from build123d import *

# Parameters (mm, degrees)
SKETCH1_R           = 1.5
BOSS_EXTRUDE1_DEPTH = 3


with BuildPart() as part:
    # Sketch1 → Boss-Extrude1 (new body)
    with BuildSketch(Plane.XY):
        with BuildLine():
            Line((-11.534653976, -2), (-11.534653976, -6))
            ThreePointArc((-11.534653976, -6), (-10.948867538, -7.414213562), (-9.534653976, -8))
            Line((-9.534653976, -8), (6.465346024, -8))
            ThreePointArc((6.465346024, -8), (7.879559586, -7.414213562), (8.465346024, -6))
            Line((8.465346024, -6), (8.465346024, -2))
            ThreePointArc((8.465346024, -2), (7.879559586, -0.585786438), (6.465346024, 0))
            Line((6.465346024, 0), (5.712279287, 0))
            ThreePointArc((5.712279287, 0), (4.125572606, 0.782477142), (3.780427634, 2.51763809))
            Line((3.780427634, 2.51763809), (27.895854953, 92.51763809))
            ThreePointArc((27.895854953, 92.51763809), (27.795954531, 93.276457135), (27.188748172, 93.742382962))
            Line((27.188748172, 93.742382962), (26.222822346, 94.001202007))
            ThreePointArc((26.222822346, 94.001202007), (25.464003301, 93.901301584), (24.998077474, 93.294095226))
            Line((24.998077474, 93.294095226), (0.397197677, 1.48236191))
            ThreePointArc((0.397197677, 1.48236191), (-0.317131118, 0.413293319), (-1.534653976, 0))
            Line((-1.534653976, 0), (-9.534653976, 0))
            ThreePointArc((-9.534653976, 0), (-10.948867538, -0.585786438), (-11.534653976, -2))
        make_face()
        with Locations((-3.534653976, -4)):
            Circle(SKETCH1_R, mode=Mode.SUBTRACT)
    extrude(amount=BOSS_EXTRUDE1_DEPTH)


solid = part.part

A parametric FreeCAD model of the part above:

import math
import FreeCAD as App
import Part
import Sketcher
Q = App.Units.Quantity

doc = App.newDocument("Part")
body = doc.addObject("PartDesign::Body", "Body")

# Sketch on XY plane
sketch1 = body.newObject("Sketcher::SketchObject", "Sketch")
sketch1.AttachmentSupport = (doc.getObject("XY_Plane"), [""])
sketch1.MapMode = "FlatFace"
sketch1.addGeometry([
    Part.LineSegment(App.Vector(-11.5, -2, 0), App.Vector(-11.5, -6, 0)),  # 0
    Part.ArcOfCircle(Part.Circle(App.Vector(-9.5, -6, 0), App.Vector(0, 0, 1), 2), math.radians(-180), math.radians(-90)),  # 1
    Part.LineSegment(App.Vector(-9.5, -8, 0), App.Vector(6.5, -8, 0)),  # 2
    Part.ArcOfCircle(Part.Circle(App.Vector(6.5, -6, 0), App.Vector(0, 0, 1), 2), math.radians(-90), math.radians(0)),  # 3
    Part.LineSegment(App.Vector(8.5, -6, 0), App.Vector(8.5, -2, 0)),  # 4
    Part.ArcOfCircle(Part.Circle(App.Vector(6.5, -2, 0), App.Vector(0, 0, 1), 2), math.radians(0), math.radians(90)),  # 5
    Part.LineSegment(App.Vector(6.5, 0, 0), App.Vector(5.7, 0, 0)),  # 6
    Part.ArcOfCircle(Part.Circle(App.Vector(5.7, 2, 0), App.Vector(0, 0, 1), 2), math.radians(165), math.radians(270)),  # 7
    Part.LineSegment(App.Vector(3.8, 2.5, 0), App.Vector(27.9, 92.5, 0)),  # 8
    Part.ArcOfCircle(Part.Circle(App.Vector(26.9, 92.8, 0), App.Vector(0, 0, 1), 1), math.radians(-15), math.radians(75)),  # 9
    Part.LineSegment(App.Vector(27.2, 93.7, 0), App.Vector(26.2, 94, 0)),  # 10
    Part.ArcOfCircle(Part.Circle(App.Vector(26, 93, 0), App.Vector(0, 0, 1), 1), math.radians(75), math.radians(165)),  # 11
    Part.LineSegment(App.Vector(25, 93.3, 0), App.Vector(0.4, 1.5, 0)),  # 12
    Part.ArcOfCircle(Part.Circle(App.Vector(-1.5, 2, 0), App.Vector(0, 0, 1), 2), math.radians(-90), math.radians(-15)),  # 13
    Part.LineSegment(App.Vector(-1.5, 0, 0), App.Vector(-9.5, 0, 0)),  # 14
    Part.ArcOfCircle(Part.Circle(App.Vector(-9.5, -2, 0), App.Vector(0, 0, 1), 2), math.radians(90), math.radians(180)),  # 15
    Part.Circle(App.Vector(-3.5, -4, 0), App.Vector(0, 0, 1), 1.5),  # 16
], False)
sketch1.addConstraint([
    Sketcher.Constraint("Tangent", 0, 2, 1, 1),
    Sketcher.Constraint("Tangent", 1, 2, 2, 1),
    Sketcher.Constraint("Tangent", 2, 2, 3, 1),
    Sketcher.Constraint("Tangent", 3, 2, 4, 1),
    Sketcher.Constraint("Tangent", 4, 2, 5, 1),
    Sketcher.Constraint("Tangent", 5, 2, 6, 1),
    Sketcher.Constraint("Tangent", 6, 2, 7, 2),
    Sketcher.Constraint("Tangent", 7, 1, 8, 1),
    Sketcher.Constraint("Tangent", 8, 2, 9, 1),
    Sketcher.Constraint("Tangent", 9, 2, 10, 1),
    Sketcher.Constraint("Tangent", 10, 2, 11, 1),
    Sketcher.Constraint("Tangent", 11, 2, 12, 1),
    Sketcher.Constraint("Tangent", 12, 2, 13, 2),
    Sketcher.Constraint("Tangent", 13, 1, 14, 1),
    Sketcher.Constraint("Tangent", 14, 2, 15, 1),
    Sketcher.Constraint("Tangent", 15, 2, 0, 1),
    Sketcher.Constraint("Vertical", 0),
    Sketcher.Constraint("Horizontal", 2),
    Sketcher.Constraint("Vertical", 4),
    Sketcher.Constraint("Horizontal", 6),
    Sketcher.Constraint("Horizontal", 14),
    Sketcher.Constraint("Equal", 1, 3),
    Sketcher.Constraint("Equal", 3, 5),
    Sketcher.Constraint("Equal", 5, 7),
    Sketcher.Constraint("Equal", 9, 11),
    Sketcher.Constraint("Equal", 7, 13),
    Sketcher.Constraint("Equal", 13, 15),
    Sketcher.Constraint("PointOnObject", 5, 2, -1),
    Sketcher.Constraint("PointOnObject", 13, 1, -1),
    Sketcher.Constraint("Perpendicular", 8, 10),
    Sketcher.Constraint("Perpendicular", 10, 12),
    Sketcher.Constraint("Diameter", 16, Q("3 mm")),
    Sketcher.Constraint("Radius", 1, Q("2 mm")),
    Sketcher.Constraint("Radius", 9, Q("1 mm")),
    Sketcher.Constraint("DistanceX", 2, 1, 2, 2, Q("16 mm")),
    Sketcher.Constraint("DistanceX", 14, 2, 14, 1, Q("8 mm")),
    Sketcher.Constraint("DistanceY", 0, 2, 0, 1, Q("4 mm")),
    Sketcher.Constraint("Angle", 8, Q("75 deg")),
    Sketcher.Constraint("Distance", 10, Q("1 mm")),
    Sketcher.Constraint("DistanceY", 16, 3, -1, 1, Q("4 mm")),
    Sketcher.Constraint("DistanceX", 1, 3, 16, 3, Q("6 mm")),
    Sketcher.Constraint("DistanceY", 7, 1, 8, 2, Q("90 mm")),
    Sketcher.Constraint("DistanceX", -1, 1, 7, 3, Q("5.712279 mm")),
])
pad1 = body.newObject("PartDesign::Pad", "Pad")
pad1.Profile = sketch1
pad1.Length = 3

doc.recompute()
